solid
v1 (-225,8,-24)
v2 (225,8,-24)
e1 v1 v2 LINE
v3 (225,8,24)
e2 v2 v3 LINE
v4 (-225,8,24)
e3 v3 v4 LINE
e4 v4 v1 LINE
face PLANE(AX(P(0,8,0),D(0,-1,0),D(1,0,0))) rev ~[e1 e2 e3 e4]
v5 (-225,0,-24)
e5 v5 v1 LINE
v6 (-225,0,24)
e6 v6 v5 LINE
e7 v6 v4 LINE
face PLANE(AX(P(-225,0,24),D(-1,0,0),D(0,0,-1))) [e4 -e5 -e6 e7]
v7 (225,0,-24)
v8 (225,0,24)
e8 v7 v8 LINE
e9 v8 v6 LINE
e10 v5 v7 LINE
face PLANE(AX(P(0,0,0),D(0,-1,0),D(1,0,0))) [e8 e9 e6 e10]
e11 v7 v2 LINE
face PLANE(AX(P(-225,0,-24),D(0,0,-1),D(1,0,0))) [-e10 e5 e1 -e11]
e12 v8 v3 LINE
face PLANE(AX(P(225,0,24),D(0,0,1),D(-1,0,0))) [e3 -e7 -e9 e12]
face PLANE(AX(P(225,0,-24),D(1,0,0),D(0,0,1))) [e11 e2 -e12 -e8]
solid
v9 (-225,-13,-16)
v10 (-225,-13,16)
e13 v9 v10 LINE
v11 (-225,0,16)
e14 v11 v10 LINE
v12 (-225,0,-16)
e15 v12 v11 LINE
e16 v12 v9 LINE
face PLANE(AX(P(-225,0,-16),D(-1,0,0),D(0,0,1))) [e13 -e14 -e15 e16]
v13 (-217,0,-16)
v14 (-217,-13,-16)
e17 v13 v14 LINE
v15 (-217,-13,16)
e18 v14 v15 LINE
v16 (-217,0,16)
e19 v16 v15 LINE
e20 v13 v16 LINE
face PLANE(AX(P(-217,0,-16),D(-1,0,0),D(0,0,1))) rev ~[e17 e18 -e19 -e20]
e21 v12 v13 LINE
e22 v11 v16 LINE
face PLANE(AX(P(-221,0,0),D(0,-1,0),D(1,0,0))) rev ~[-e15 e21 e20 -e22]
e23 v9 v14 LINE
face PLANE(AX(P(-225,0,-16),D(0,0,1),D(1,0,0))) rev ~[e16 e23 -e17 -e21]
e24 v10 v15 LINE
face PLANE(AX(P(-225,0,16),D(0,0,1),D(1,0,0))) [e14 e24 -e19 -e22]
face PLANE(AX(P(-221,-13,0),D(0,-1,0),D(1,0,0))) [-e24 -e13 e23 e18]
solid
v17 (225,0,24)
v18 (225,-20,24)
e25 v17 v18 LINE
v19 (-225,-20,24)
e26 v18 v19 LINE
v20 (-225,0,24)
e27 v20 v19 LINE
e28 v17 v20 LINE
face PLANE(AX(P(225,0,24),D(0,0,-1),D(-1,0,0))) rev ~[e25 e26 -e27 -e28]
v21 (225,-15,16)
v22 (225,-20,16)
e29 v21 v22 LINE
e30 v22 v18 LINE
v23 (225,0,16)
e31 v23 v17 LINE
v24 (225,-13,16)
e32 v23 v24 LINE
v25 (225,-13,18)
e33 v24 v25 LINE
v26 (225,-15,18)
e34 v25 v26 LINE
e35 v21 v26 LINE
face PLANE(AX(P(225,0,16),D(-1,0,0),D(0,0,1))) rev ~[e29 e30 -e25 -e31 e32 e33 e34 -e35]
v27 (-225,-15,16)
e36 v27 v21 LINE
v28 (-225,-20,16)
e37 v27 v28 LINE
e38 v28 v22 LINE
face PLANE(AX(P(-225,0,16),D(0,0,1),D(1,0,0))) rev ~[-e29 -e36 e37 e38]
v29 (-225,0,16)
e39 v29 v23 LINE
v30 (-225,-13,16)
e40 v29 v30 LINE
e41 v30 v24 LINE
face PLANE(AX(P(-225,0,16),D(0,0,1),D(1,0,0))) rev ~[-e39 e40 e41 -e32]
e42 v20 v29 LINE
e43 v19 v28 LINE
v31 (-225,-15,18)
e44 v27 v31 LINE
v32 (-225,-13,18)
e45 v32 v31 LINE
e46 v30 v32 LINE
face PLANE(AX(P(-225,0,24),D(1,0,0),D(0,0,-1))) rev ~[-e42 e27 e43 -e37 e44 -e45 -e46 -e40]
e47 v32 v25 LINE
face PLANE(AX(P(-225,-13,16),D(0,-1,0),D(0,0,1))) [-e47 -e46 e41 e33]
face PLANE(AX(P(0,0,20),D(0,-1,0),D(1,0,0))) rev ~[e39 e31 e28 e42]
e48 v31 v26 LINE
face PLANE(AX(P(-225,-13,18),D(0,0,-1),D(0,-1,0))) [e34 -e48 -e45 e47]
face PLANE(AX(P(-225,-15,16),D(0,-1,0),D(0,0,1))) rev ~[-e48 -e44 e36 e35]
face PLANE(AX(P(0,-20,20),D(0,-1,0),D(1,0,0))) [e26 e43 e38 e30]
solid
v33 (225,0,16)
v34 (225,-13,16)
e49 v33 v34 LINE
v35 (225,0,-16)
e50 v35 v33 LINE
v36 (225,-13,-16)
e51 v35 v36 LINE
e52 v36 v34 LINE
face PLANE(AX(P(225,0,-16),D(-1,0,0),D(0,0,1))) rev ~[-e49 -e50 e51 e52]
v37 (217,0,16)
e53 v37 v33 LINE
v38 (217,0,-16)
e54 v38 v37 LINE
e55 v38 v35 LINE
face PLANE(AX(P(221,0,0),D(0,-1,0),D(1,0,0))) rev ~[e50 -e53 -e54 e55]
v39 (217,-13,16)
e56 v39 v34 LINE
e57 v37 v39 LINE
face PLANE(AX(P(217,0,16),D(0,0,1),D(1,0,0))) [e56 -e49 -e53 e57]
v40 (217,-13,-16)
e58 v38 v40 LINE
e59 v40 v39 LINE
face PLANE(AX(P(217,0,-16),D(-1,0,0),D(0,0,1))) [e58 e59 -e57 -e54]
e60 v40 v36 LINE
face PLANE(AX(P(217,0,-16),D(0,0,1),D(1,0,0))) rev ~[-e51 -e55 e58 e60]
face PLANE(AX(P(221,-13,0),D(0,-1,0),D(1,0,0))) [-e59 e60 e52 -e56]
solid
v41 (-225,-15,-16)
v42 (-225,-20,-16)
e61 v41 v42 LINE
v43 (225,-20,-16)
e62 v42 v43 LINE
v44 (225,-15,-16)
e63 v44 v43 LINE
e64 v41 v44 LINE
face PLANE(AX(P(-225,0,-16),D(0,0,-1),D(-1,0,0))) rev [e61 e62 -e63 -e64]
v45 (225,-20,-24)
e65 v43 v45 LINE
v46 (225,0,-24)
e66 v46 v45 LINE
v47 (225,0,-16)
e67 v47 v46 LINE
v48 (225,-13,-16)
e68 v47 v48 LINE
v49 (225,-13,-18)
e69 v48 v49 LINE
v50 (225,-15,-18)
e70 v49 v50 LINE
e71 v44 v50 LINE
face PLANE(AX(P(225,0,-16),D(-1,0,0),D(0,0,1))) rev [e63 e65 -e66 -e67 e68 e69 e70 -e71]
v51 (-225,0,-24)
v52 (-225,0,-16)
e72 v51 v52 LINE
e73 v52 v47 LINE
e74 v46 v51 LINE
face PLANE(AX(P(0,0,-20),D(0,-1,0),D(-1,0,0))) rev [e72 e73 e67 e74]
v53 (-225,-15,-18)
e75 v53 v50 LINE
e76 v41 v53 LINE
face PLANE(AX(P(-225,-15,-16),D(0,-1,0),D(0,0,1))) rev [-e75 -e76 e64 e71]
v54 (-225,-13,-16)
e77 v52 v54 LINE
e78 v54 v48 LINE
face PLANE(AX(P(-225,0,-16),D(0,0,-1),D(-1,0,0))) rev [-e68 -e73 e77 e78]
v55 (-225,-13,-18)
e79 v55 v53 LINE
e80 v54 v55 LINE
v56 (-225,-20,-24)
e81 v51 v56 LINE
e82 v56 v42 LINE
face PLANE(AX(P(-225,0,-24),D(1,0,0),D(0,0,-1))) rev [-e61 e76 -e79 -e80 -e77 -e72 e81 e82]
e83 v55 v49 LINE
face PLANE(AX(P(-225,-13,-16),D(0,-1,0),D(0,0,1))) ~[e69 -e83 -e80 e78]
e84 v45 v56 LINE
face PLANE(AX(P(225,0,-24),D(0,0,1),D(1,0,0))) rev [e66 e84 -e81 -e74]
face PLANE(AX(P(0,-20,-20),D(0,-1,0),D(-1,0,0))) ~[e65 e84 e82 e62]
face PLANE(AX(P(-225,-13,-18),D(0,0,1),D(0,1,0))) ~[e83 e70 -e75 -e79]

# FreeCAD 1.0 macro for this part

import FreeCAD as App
import Part
import Sketcher
Q = App.Units.Quantity

doc = App.newDocument("Part")
params = doc.addObject("Spreadsheet::Sheet", "Params")
for row, (alias, value) in enumerate([
    ("sketch1_width", "450 mm"),
    ("sketch1_height", "8 mm"),
    ("pad1_length", "20 mm"),
    ("sketch2_width", "2 mm"),
    ("pocket1_length", "2384 mm"),
    ("sketch3_width", "8 mm"),
    ("sketch3_height", "32 mm"),
    ("pad2_length", "13 mm"),
    ("sketch4_width", "8 mm"),
    ("sketch4_height", "32 mm"),
    ("pad3_length", "13 mm"),
    ("sketch5_width", "450 mm"),
    ("sketch5_height", "48 mm"),
    ("pad4_length", "8 mm"),
], start=1):
    params.set(f"A{row}", alias)
    params.set(f"B{row}", "=" + value)
    params.setAlias(f"B{row}", alias)

body = doc.addObject("PartDesign::Body", "Body")

# Sketch on XZ plane
sketch1 = body.newObject("Sketcher::SketchObject", "Sketch")
sketch1.AttachmentSupport = (doc.getObject("XZ_Plane"), [""])
sketch1.MapMode = "FlatFace"
sketch1.addGeometry([
    Part.LineSegment(App.Vector(225, 16, 0), App.Vector(225, 24, 0)),
    Part.LineSegment(App.Vector(225, 24, 0), App.Vector(-225, 24, 0)),
    Part.LineSegment(App.Vector(-225, 24, 0), App.Vector(-225, 16, 0)),
    Part.LineSegment(App.Vector(-225, 16, 0), App.Vector(225, 16, 0)),
], False)
sketch1.addConstraint([
    Sketcher.Constraint("Coincident", 0, 2, 1, 1),
    Sketcher.Constraint("Coincident", 1, 2, 2, 1),
    Sketcher.Constraint("Coincident", 2, 2, 3, 1),
    Sketcher.Constraint("Coincident", 3, 2, 0, 1),
    Sketcher.Constraint("Vertical", 0),
    Sketcher.Constraint("Horizontal", 1),
    Sketcher.Constraint("Vertical", 2),
    Sketcher.Constraint("Horizontal", 3),
    Sketcher.Constraint("DistanceX", 1, 2, 1, 1, Q("450 mm")),
    Sketcher.Constraint("DistanceY", 0, 1, 0, 2, Q("8 mm")),
    Sketcher.Constraint("DistanceX", -1, 1, 0, 2, Q("225 mm")),
    Sketcher.Constraint("DistanceY", -1, 1, 0, 2, Q("24 mm")),
])
sketch1.setExpression("Constraints[8]", "Params.sketch1_width")
sketch1.setExpression("Constraints[9]", "Params.sketch1_height")
pad1 = body.newObject("PartDesign::Pad", "Pad")
pad1.Profile = sketch1
pad1.setExpression("Length", "Params.pad1_length")

# Sketch on YZ plane
sketch2 = body.newObject("Sketcher::SketchObject", "Sketch001")
sketch2.AttachmentSupport = (doc.getObject("YZ_Plane"), [""])
sketch2.MapMode = "FlatFace"
sketch2.AttachmentOffset = App.Placement(App.Vector(0, 0, -225), App.Rotation())
sketch2.addGeometry([
    Part.LineSegment(App.Vector(-13, 18, 0), App.Vector(-13, 16, 0)),
    Part.LineSegment(App.Vector(-13, 16, 0), App.Vector(-15, 16, 0)),
    Part.LineSegment(App.Vector(-15, 16, 0), App.Vector(-15, 18, 0)),
    Part.LineSegment(App.Vector(-15, 18, 0), App.Vector(-13, 18, 0)),
], False)
sketch2.addConstraint([
    Sketcher.Constraint("Coincident", 0, 2, 1, 1),
    Sketcher.Constraint("Coincident", 1, 2, 2, 1),
    Sketcher.Constraint("Coincident", 2, 2, 3, 1),
    Sketcher.Constraint("Coincident", 3, 2, 0, 1),
    Sketcher.Constraint("Vertical", 0),
    Sketcher.Constraint("Horizontal", 1),
    Sketcher.Constraint("Vertical", 2),
    Sketcher.Constraint("Horizontal", 3),
    Sketcher.Constraint("Equal", 3, 0),
    Sketcher.Constraint("DistanceX", 1, 2, 1, 1, Q("2 mm")),
    Sketcher.Constraint("DistanceX", 0, 2, -1, 1, Q("13 mm")),
    Sketcher.Constraint("DistanceY", -1, 1, 0, 2, Q("16 mm")),
])
sketch2.setExpression("Constraints[9]", "Params.sketch2_width")
pocket1 = body.newObject("PartDesign::Pocket", "Pocket")
pocket1.Profile = sketch2
pocket1.setExpression("Length", "Params.pocket1_length")
pocket1.Reversed = True
body2 = doc.addObject("PartDesign::Body", "Body001")

# Sketch on XZ plane
sketch3 = body2.newObject("Sketcher::SketchObject", "Sketch002")
sketch3.AttachmentSupport = (doc.getObject("XZ_Plane001"), [""])
sketch3.MapMode = "FlatFace"
sketch3.addGeometry([
    Part.LineSegment(App.Vector(-225, 16, 0), App.Vector(-225, -16, 0)),
    Part.LineSegment(App.Vector(-225, -16, 0), App.Vector(-217, -16, 0)),
    Part.LineSegment(App.Vector(-217, -16, 0), App.Vector(-217, 16, 0)),
    Part.LineSegment(App.Vector(-217, 16, 0), App.Vector(-225, 16, 0)),
], False)
sketch3.addConstraint([
    Sketcher.Constraint("Coincident", 0, 2, 1, 1),
    Sketcher.Constraint("Coincident", 1, 2, 2, 1),
    Sketcher.Constraint("Coincident", 2, 2, 3, 1),
    Sketcher.Constraint("Coincident", 3, 2, 0, 1),
    Sketcher.Constraint("Vertical", 0),
    Sketcher.Constraint("Horizontal", 1),
    Sketcher.Constraint("Vertical", 2),
    Sketcher.Constraint("Horizontal", 3),
    Sketcher.Constraint("DistanceX", 1, 1, 1, 2, Q("8 mm")),
    Sketcher.Constraint("DistanceY", 0, 2, 0, 1, Q("32 mm")),
    Sketcher.Constraint("DistanceX", 0, 2, -1, 1, Q("225 mm")),
    Sketcher.Constraint("DistanceY", 0, 2, -1, 1, Q("16 mm")),
])
sketch3.setExpression("Constraints[8]", "Params.sketch3_width")
sketch3.setExpression("Constraints[9]", "Params.sketch3_height")
pad2 = body2.newObject("PartDesign::Pad", "Pad001")
pad2.Profile = sketch3
pad2.setExpression("Length", "Params.pad2_length")
body3 = doc.addObject("PartDesign::Body", "Body002")

# Sketch on XZ plane
sketch4 = body3.newObject("Sketcher::SketchObject", "Sketch003")
sketch4.AttachmentSupport = (doc.getObject("XZ_Plane002"), [""])
sketch4.MapMode = "FlatFace"
sketch4.addGeometry([
    Part.LineSegment(App.Vector(217, 16, 0), App.Vector(217, -16, 0)),
    Part.LineSegment(App.Vector(217, -16, 0), App.Vector(225, -16, 0)),
    Part.LineSegment(App.Vector(225, -16, 0), App.Vector(225, 16, 0)),
    Part.LineSegment(App.Vector(225, 16, 0), App.Vector(217, 16, 0)),
], False)
sketch4.addConstraint([
    Sketcher.Constraint("Coincident", 0, 2, 1, 1),
    Sketcher.Constraint("Coincident", 1, 2, 2, 1),
    Sketcher.Constraint("Coincident", 2, 2, 3, 1),
    Sketcher.Constraint("Coincident", 3, 2, 0, 1),
    Sketcher.Constraint("Vertical", 0),
    Sketcher.Constraint("Horizontal", 1),
    Sketcher.Constraint("Vertical", 2),
    Sketcher.Constraint("Horizontal", 3),
    Sketcher.Constraint("DistanceX", 1, 1, 1, 2, Q("8 mm")),
    Sketcher.Constraint("DistanceY", 0, 2, 0, 1, Q("32 mm")),
    Sketcher.Constraint("DistanceX", -1, 1, 0, 2, Q("217 mm")),
    Sketcher.Constraint("DistanceY", 0, 2, -1, 1, Q("16 mm")),
])
sketch4.setExpression("Constraints[8]", "Params.sketch4_width")
sketch4.setExpression("Constraints[9]", "Params.sketch4_height")
pad3 = body3.newObject("PartDesign::Pad", "Pad002")
pad3.Profile = sketch4
pad3.setExpression("Length", "Params.pad3_length")
body4 = doc.addObject("PartDesign::Body", "Body003")

# Sketch on XZ plane
sketch5 = body4.newObject("Sketcher::SketchObject", "Sketch004")
sketch5.AttachmentSupport = (doc.getObject("XZ_Plane003"), [""])
sketch5.MapMode = "FlatFace"
sketch5.addGeometry([
    Part.LineSegment(App.Vector(-225, -24, 0), App.Vector(225, -24, 0)),
    Part.LineSegment(App.Vector(225, -24, 0), App.Vector(225, 24, 0)),
    Part.LineSegment(App.Vector(225, 24, 0), App.Vector(-225, 24, 0)),
    Part.LineSegment(App.Vector(-225, 24, 0), App.Vector(-225, -24, 0)),
], False)
sketch5.addConstraint([
    Sketcher.Constraint("Coincident", 0, 2, 1, 1),
    Sketcher.Constraint("Coincident", 1, 2, 2, 1),
    Sketcher.Constraint("Coincident", 2, 2, 3, 1),
    Sketcher.Constraint("Coincident", 3, 2, 0, 1),
    Sketcher.Constraint("Horizontal", 0),
    Sketcher.Constraint("Vertical", 1),
    Sketcher.Constraint("Horizontal", 2),
    Sketcher.Constraint("Vertical", 3),
    Sketcher.Constraint("Symmetric", 0, 2, 2, 2, -1, 1),
    Sketcher.Constraint("DistanceX", 0, 1, 0, 2, Q("450 mm")),
    Sketcher.Constraint("DistanceY", 1, 1, 1, 2, Q("48 mm")),
])
sketch5.setExpression("Constraints[9]", "Params.sketch5_width")
sketch5.setExpression("Constraints[10]", "Params.sketch5_height")
pad4 = body4.newObject("PartDesign::Pad", "Pad003")
pad4.Profile = sketch5
pad4.setExpression("Length", "Params.pad4_length")
pad4.Reversed = True
body5 = doc.addObject("PartDesign::Body", "Body004")
doc.recompute()

mirroring = doc.addObject("Part::Mirroring", "Mirroring")
mirroring.Source = body
mirroring.Base = App.Vector(0, 0, 0)
mirroring.Normal = App.Vector(0, 0, 1)
body5.BaseFeature = mirroring
doc.recompute()
mirroring.Visibility = False

doc.recompute()
